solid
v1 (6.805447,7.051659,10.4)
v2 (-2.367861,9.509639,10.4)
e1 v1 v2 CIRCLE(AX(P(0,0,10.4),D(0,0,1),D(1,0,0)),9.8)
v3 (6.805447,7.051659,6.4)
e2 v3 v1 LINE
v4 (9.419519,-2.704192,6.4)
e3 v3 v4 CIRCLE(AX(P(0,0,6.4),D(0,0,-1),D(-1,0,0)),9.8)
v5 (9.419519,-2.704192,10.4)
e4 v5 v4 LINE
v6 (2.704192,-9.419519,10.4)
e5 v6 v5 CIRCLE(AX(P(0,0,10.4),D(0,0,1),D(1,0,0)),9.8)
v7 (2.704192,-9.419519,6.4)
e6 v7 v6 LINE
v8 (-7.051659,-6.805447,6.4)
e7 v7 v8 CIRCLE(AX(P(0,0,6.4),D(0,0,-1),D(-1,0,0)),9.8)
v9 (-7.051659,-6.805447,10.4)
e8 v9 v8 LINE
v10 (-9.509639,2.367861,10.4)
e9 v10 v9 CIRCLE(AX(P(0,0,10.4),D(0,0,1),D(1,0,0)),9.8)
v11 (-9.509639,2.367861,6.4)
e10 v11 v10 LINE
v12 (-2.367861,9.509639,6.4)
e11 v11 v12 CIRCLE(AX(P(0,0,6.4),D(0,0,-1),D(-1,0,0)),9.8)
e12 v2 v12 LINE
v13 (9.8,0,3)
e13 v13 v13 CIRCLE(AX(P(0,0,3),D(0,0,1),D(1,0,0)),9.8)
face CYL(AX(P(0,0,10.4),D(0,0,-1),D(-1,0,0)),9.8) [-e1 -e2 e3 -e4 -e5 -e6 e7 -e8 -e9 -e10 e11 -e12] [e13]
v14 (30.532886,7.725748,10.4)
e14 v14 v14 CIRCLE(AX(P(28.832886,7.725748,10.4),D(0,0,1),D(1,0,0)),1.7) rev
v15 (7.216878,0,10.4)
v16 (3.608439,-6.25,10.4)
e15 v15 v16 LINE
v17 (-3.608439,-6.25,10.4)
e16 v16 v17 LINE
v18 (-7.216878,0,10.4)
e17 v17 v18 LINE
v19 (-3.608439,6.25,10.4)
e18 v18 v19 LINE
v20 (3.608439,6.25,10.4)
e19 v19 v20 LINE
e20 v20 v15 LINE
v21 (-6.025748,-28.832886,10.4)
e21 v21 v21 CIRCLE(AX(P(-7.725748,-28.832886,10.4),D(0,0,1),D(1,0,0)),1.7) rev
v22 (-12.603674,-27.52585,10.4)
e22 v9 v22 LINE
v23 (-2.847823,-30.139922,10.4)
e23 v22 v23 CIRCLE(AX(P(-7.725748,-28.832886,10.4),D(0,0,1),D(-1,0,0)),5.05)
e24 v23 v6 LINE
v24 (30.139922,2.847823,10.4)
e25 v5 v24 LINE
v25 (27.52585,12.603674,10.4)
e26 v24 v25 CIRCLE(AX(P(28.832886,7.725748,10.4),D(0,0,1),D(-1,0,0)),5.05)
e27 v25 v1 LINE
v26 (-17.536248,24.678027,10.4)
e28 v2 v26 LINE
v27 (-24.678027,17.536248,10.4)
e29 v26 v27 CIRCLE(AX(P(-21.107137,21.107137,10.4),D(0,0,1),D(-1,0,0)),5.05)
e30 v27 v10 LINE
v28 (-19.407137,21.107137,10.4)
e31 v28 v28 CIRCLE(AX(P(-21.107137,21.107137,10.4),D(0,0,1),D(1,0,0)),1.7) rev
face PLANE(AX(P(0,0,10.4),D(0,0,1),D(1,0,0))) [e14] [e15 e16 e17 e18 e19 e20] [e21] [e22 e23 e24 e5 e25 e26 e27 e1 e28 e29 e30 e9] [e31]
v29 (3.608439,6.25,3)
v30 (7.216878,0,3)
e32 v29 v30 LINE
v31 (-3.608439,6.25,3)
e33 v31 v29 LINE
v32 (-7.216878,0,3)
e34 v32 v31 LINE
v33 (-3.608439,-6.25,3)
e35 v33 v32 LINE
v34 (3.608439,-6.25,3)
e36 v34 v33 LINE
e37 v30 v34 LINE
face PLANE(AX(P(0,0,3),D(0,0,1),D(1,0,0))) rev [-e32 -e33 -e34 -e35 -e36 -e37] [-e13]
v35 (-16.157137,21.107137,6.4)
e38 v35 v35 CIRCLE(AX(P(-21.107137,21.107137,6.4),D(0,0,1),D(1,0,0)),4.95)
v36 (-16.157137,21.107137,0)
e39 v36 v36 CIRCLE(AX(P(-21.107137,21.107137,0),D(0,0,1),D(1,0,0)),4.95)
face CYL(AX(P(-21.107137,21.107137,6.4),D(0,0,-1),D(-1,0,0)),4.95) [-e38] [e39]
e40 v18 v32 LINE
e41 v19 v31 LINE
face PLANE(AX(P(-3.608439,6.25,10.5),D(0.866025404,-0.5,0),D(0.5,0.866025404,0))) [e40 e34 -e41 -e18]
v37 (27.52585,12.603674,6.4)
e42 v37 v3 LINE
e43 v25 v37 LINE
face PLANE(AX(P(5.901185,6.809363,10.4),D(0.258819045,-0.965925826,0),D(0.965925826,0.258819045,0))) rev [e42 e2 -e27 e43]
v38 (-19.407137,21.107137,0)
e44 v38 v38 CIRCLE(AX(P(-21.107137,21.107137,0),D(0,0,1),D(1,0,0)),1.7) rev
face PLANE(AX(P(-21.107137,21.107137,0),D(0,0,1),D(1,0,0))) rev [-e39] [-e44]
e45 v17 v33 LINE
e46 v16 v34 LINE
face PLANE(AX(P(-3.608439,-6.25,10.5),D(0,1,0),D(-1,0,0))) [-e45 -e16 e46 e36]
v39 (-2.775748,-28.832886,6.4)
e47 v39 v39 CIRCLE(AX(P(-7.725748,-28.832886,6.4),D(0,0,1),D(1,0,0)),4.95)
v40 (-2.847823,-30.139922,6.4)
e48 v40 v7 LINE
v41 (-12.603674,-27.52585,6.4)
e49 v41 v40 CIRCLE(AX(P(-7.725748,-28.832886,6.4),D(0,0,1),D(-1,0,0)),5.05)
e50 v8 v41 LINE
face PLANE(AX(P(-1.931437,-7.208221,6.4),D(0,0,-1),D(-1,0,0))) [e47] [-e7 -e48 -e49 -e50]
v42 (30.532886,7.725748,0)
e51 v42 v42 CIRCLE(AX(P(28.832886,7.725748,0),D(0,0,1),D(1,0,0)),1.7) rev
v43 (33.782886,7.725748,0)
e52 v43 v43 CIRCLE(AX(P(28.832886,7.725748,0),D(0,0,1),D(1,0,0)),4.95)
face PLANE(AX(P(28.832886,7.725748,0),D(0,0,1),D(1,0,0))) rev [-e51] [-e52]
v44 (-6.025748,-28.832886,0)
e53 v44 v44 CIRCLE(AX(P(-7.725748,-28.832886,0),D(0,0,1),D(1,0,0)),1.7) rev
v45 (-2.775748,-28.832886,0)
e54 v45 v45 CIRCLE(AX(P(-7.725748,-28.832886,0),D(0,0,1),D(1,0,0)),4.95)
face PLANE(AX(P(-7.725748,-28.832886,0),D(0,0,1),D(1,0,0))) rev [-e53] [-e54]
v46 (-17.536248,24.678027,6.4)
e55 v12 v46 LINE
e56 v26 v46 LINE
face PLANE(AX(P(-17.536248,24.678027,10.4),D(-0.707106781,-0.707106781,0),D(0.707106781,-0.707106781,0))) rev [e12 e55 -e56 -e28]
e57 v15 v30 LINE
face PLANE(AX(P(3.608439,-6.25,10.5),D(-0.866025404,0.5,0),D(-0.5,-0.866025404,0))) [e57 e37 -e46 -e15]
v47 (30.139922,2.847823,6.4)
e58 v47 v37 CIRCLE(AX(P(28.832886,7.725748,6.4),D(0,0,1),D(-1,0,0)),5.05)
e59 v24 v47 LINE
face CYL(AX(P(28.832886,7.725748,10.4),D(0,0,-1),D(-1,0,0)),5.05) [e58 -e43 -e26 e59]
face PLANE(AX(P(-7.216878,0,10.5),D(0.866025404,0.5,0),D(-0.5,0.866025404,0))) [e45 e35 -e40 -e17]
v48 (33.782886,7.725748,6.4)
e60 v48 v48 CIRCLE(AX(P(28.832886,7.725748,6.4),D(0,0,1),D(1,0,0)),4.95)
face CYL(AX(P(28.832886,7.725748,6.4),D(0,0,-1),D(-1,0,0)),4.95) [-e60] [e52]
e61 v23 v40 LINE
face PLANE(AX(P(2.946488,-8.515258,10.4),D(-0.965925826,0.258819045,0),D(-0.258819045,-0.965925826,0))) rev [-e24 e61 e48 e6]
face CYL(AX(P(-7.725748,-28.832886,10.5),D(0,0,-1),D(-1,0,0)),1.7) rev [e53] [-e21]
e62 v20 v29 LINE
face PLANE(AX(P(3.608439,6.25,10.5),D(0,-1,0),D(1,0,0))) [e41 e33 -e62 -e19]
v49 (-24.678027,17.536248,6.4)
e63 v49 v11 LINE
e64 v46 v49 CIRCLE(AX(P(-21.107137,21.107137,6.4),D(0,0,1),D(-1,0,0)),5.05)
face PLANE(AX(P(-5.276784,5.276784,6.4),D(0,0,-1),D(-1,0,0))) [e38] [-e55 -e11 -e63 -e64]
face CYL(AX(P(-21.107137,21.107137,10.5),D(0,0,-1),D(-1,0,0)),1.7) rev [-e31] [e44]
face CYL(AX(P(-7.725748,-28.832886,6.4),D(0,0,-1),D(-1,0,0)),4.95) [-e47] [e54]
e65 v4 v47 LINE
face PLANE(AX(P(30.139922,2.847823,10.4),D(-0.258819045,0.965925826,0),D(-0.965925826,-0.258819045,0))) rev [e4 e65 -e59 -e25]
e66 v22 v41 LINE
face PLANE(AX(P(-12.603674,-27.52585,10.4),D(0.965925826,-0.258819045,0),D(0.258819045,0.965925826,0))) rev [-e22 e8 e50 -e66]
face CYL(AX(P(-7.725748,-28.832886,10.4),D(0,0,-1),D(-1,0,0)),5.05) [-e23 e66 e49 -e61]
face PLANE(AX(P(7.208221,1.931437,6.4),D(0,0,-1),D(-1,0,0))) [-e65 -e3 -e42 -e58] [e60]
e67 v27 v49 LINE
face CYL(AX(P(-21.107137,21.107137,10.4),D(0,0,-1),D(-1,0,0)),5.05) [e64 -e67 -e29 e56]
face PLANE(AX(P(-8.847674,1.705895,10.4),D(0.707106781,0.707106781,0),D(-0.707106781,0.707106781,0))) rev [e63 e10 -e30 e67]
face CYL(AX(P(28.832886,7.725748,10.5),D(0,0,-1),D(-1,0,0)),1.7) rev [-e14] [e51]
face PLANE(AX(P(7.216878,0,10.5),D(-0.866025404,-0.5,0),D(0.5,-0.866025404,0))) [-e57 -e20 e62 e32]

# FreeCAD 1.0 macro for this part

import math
import FreeCAD as App
import Part
import Sketcher

V = App.Vector
Q = App.Units.Quantity


def add_polygon(sketch, points):
    """Adds a closed chain of lines whose ends are joined by coincident constraints."""
    first, n = sketch.GeometryCount, len(points)
    for a, b in zip(points, points[1:] + points[:1]):
        sketch.addGeometry(Part.LineSegment(App.Vector(*a, 0), App.Vector(*b, 0)), False)
    for i in range(n):
        sketch.addConstraint(Sketcher.Constraint("Coincident", first + i, 2, first + (i + 1) % n, 1))

doc = App.newDocument("Part")
body = doc.addObject("PartDesign::Body", "Body")

# Sketch on XY plane
sketch1 = doc.addObject("Sketcher::SketchObject", "Sketch")
body.addObject(sketch1)
sketch1.AttachmentSupport = (doc.XY_Plane, [""])
sketch1.MapMode = "FlatFace"
sketch1.AttachmentOffset = App.Placement(V(0, 0, 3), App.Rotation())
sketch1.addGeometry(Part.Circle(V(0, 0, 0), V(0, 0, 1), 9.8), False)
sketch1.addConstraint(Sketcher.Constraint("Coincident", 0, 3, -1, 1))
sketch1.addConstraint(Sketcher.Constraint("Diameter", 0, Q("19.6 mm")))
pad1 = doc.addObject("PartDesign::Pad", "Pad")
body.addObject(pad1)
pad1.Profile = sketch1
pad1.Length = 7.4

# Sketch on XY plane
sketch2 = doc.addObject("Sketcher::SketchObject", "Sketch001")
body.addObject(sketch2)
sketch2.AttachmentSupport = (doc.XY_Plane, [""])
sketch2.MapMode = "FlatFace"
sketch2.AttachmentOffset = App.Placement(V(0, 0, 6.4), App.Rotation())
sketch2.addGeometry(Part.LineSegment(V(27.52585, 12.603674, 0), V(5.901185, 6.809363, 0)), False)
sketch2.addGeometry(Part.ArcOfCircle(Part.Circle(V(7.208221, 1.931437, 0), V(0, 0, 1), 5.05), math.radians(105), math.radians(285)), False)
sketch2.addGeometry(Part.LineSegment(V(8.515258, -2.946488, 0), V(30.139922, 2.847823, 0)), False)
sketch2.addGeometry(Part.ArcOfCircle(Part.Circle(V(28.832886, 7.725748, 0), V(0, 0, 1), 5.05), math.radians(-75), math.radians(105)), False)
sketch2.addConstraint(Sketcher.Constraint("Tangent", 0, 2, 1, 1))
sketch2.addConstraint(Sketcher.Constraint("Tangent", 1, 2, 2, 1))
sketch2.addConstraint(Sketcher.Constraint("Tangent", 2, 2, 3, 1))
sketch2.addConstraint(Sketcher.Constraint("Tangent", 3, 2, 0, 1))
sketch2.addConstraint(Sketcher.Constraint("Equal", 1, 3))
sketch2.addConstraint(Sketcher.Constraint("Angle", 0, Q("-165 deg")))
sketch2.addConstraint(Sketcher.Constraint("Radius", 1, Q("5.05 mm")))
sketch2.addConstraint(Sketcher.Constraint("Distance", 0, Q("22.3875 mm")))
sketch2.addConstraint(Sketcher.Constraint("DistanceX", -1, 1, 1, 3, Q("7.208221 mm")))
sketch2.addConstraint(Sketcher.Constraint("DistanceY", -1, 1, 3, 3, Q("7.725748 mm")))
pad2 = doc.addObject("PartDesign::Pad", "Pad001")
body.addObject(pad2)
pad2.Profile = sketch2
pad2.Length = 4

# Sketch on XY plane
sketch3 = doc.addObject("Sketcher::SketchObject", "Sketch002")
body.addObject(sketch3)
sketch3.AttachmentSupport = (doc.XY_Plane, [""])
sketch3.MapMode = "FlatFace"
sketch3.addGeometry(Part.Circle(V(28.832886, 7.725748, 0), V(0, 0, 1), 4.95), False)
sketch3.addConstraint(Sketcher.Constraint("Diameter", 0, Q("9.9 mm")))
sketch3.addConstraint(Sketcher.Constraint("DistanceY", -1, 1, 0, 3, Q("7.725748 mm")))
sketch3.addConstraint(Sketcher.Constraint("DistanceX", -1, 1, 0, 3, Q("28.832886 mm")))
pad3 = doc.addObject("PartDesign::Pad", "Pad002")
body.addObject(pad3)
pad3.Profile = sketch3
pad3.Length = 6.4

# Sketch on XY plane
sketch4 = doc.addObject("Sketcher::SketchObject", "Sketch003")
body.addObject(sketch4)
sketch4.AttachmentSupport = (doc.XY_Plane, [""])
sketch4.MapMode = "FlatFace"
sketch4.AttachmentOffset = App.Placement(V(0, 0, 6.4), App.Rotation())
sketch4.addGeometry(Part.LineSegment(V(-24.678027, 17.536248, 0), V(-8.847674, 1.705895, 0)), False)
sketch4.addGeometry(Part.ArcOfCircle(Part.Circle(V(-5.276784, 5.276784, 0), V(0, 0, 1), 5.05), math.radians(-135), math.radians(45)), False)
sketch4.addGeometry(Part.LineSegment(V(-1.705895, 8.847674, 0), V(-17.536248, 24.678027, 0)), False)
sketch4.addGeometry(Part.ArcOfCircle(Part.Circle(V(-21.107137, 21.107137, 0), V(0, 0, 1), 5.05), math.radians(45), math.radians(225)), False)
sketch4.addConstraint(Sketcher.Constraint("Tangent", 0, 2, 1, 1))
sketch4.addConstraint(Sketcher.Constraint("Tangent", 1, 2, 2, 1))
sketch4.addConstraint(Sketcher.Constraint("Tangent", 2, 2, 3, 1))
sketch4.addConstraint(Sketcher.Constraint("Tangent", 3, 2, 0, 1))
sketch4.addConstraint(Sketcher.Constraint("Equal", 1, 3))
sketch4.addConstraint(Sketcher.Constraint("Angle", 0, Q("-45 deg")))
sketch4.addConstraint(Sketcher.Constraint("Radius", 1, Q("5.05 mm")))
sketch4.addConstraint(Sketcher.Constraint("Distance", 0, Q("22.3875 mm")))
sketch4.addConstraint(Sketcher.Constraint("DistanceX", 2, 2, -1, 1, Q("17.536248 mm")))
sketch4.addConstraint(Sketcher.Constraint("DistanceY", -1, 1, 3, 2, Q("17.536248 mm")))
pad4 = doc.addObject("PartDesign::Pad", "Pad003")
body.addObject(pad4)
pad4.Profile = sketch4
pad4.Length = 4

# Sketch on XY plane
sketch5 = doc.addObject("Sketcher::SketchObject", "Sketch004")
body.addObject(sketch5)
sketch5.AttachmentSupport = (doc.XY_Plane, [""])
sketch5.MapMode = "FlatFace"
sketch5.addGeometry(Part.Circle(V(-21.107137, 21.107137, 0), V(0, 0, 1), 4.95), False)
sketch5.addConstraint(Sketcher.Constraint("Diameter", 0, Q("9.9 mm")))
sketch5.addConstraint(Sketcher.Constraint("DistanceX", 0, 3, -1, 1, Q("21.107137 mm")))
sketch5.addConstraint(Sketcher.Constraint("DistanceY", -1, 1, 0, 3, Q("21.107137 mm")))
pad5 = doc.addObject("PartDesign::Pad", "Pad004")
body.addObject(pad5)
pad5.Profile = sketch5
pad5.Length = 6.4

# Sketch on XY plane
sketch6 = doc.addObject("Sketcher::SketchObject", "Sketch005")
body.addObject(sketch6)
sketch6.AttachmentSupport = (doc.XY_Plane, [""])
sketch6.MapMode = "FlatFace"
sketch6.AttachmentOffset = App.Placement(V(0, 0, 6.4), App.Rotation())
sketch6.addGeometry(Part.LineSegment(V(-2.847823, -30.139922, 0), V(2.946488, -8.515258, 0)), False)
sketch6.addGeometry(Part.ArcOfCircle(Part.Circle(V(-1.931437, -7.208221, 0), V(0, 0, 1), 5.05), math.radians(-15), math.radians(165)), False)
sketch6.addGeometry(Part.LineSegment(V(-6.809363, -5.901185, 0), V(-12.603674, -27.52585, 0)), False)
sketch6.addGeometry(Part.ArcOfCircle(Part.Circle(V(-7.725748, -28.832886, 0), V(0, 0, 1), 5.05), math.radians(165), math.radians(345)), False)
sketch6.addConstraint(Sketcher.Constraint("Tangent", 0, 2, 1, 1))
sketch6.addConstraint(Sketcher.Constraint("Tangent", 1, 2, 2, 1))
sketch6.addConstraint(Sketcher.Constraint("Tangent", 2, 2, 3, 1))
sketch6.addConstraint(Sketcher.Constraint("Tangent", 3, 2, 0, 1))
sketch6.addConstraint(Sketcher.Constraint("Equal", 1, 3))
sketch6.addConstraint(Sketcher.Constraint("Angle", 0, Q("75 deg")))
sketch6.addConstraint(Sketcher.Constraint("Radius", 1, Q("5.05 mm")))
sketch6.addConstraint(Sketcher.Constraint("Distance", 0, Q("22.3875 mm")))
sketch6.addConstraint(Sketcher.Constraint("DistanceY", 1, 3, -1, 1, Q("7.208221 mm")))
sketch6.addConstraint(Sketcher.Constraint("DistanceX", 3, 3, -1, 1, Q("7.725748 mm")))
pad6 = doc.addObject("PartDesign::Pad", "Pad005")
body.addObject(pad6)
pad6.Profile = sketch6
pad6.Length = 4

# Sketch on XY plane
sketch7 = doc.addObject("Sketcher::SketchObject", "Sketch006")
body.addObject(sketch7)
sketch7.AttachmentSupport = (doc.XY_Plane, [""])
sketch7.MapMode = "FlatFace"
sketch7.addGeometry(Part.Circle(V(-7.725748, -28.832886, 0), V(0, 0, 1), 4.95), False)
sketch7.addConstraint(Sketcher.Constraint("Diameter", 0, Q("9.9 mm")))
sketch7.addConstraint(Sketcher.Constraint("DistanceX", 0, 3, -1, 1, Q("7.725748 mm")))
sketch7.addConstraint(Sketcher.Constraint("DistanceY", 0, 3, -1, 1, Q("28.832886 mm")))
pad7 = doc.addObject("PartDesign::Pad", "Pad006")
body.addObject(pad7)
pad7.Profile = sketch7
pad7.Length = 6.4

# Sketch on XY plane
sketch8 = doc.addObject("Sketcher::SketchObject", "Sketch007")
body.addObject(sketch8)
sketch8.AttachmentSupport = (doc.XY_Plane, [""])
sketch8.MapMode = "FlatFace"
sketch8.AttachmentOffset = App.Placement(V(0, 0, 0.1), App.Rotation())
add_polygon(sketch8, [(7.216878, 0), (3.608439, 6.25), (-3.608439, 6.25), (-7.216878, 0), (-3.608439, -6.25), (3.608439, -6.25)])  # lines 0-5
sketch8.addConstraint(Sketcher.Constraint("Horizontal", 1))
sketch8.addConstraint(Sketcher.Constraint("Horizontal", 4))
sketch8.addConstraint(Sketcher.Constraint("Symmetric", 0, 2, 3, 2, -1, 1))
sketch8.addConstraint(Sketcher.Constraint("Symmetric", 2, 2, 5, 2, -1, 1))
sketch8.addConstraint(Sketcher.Constraint("PointOnObject", 2, 2, -1))
sketch8.addConstraint(Sketcher.Constraint("Parallel", 2, 5))
sketch8.addConstraint(Sketcher.Constraint("Vertical", 1, 2, 3, 2))
sketch8.addConstraint(Sketcher.Constraint("Angle", 0, Q("120 deg")))
sketch8.addConstraint(Sketcher.Constraint("DistanceY", 3, 2, 1, 2, Q("12.5 mm")))
sketch8.addConstraint(Sketcher.Constraint("DistanceX", 1, 2, 1, 1, Q("7.216878 mm")))
pocket1 = doc.addObject("PartDesign::Pocket", "Pocket")
body.addObject(pocket1)
pocket1.Profile = sketch8
pocket1.Length = 10.6
pocket1.Reversed = True

# Sketch on XY plane
sketch9 = doc.addObject("Sketcher::SketchObject", "Sketch008")
body.addObject(sketch9)
sketch9.AttachmentSupport = (doc.XY_Plane, [""])
sketch9.MapMode = "FlatFace"
sketch9.AttachmentOffset = App.Placement(V(0, 0, -0.1), App.Rotation())
sketch9.addGeometry(Part.Circle(V(28.832886, 7.725748, 0), V(0, 0, 1), 1.7), False)
sketch9.addGeometry(Part.Circle(V(-21.107137, 21.107137, 0), V(0, 0, 1), 1.7), False)
sketch9.addGeometry(Part.Circle(V(-7.725748, -28.832886, 0), V(0, 0, 1), 1.7), False)
sketch9.addConstraint(Sketcher.Constraint("Equal", 0, 1))
sketch9.addConstraint(Sketcher.Constraint("Equal", 1, 2))
sketch9.addConstraint(Sketcher.Constraint("Diameter", 0, Q("3.4 mm")))
sketch9.addConstraint(Sketcher.Constraint("DistanceY", -1, 1, 0, 3, Q("7.725748 mm")))
sketch9.addConstraint(Sketcher.Constraint("DistanceX", 2, 3, -1, 1, Q("7.725748 mm")))
sketch9.addConstraint(Sketcher.Constraint("DistanceY", 0, 3, 1, 3, Q("13.381389 mm")))
sketch9.addConstraint(Sketcher.Constraint("DistanceX", 1, 3, 2, 3, Q("13.381389 mm")))
sketch9.addConstraint(Sketcher.Constraint("DistanceX", -1, 1, 0, 3, Q("28.832886 mm")))
sketch9.addConstraint(Sketcher.Constraint("DistanceY", 2, 3, -1, 1, Q("28.832886 mm")))
pocket2 = doc.addObject("PartDesign::Pocket", "Pocket001")
body.addObject(pocket2)
pocket2.Profile = sketch9
pocket2.Length = 10.6
pocket2.Reversed = True

doc.recompute()
